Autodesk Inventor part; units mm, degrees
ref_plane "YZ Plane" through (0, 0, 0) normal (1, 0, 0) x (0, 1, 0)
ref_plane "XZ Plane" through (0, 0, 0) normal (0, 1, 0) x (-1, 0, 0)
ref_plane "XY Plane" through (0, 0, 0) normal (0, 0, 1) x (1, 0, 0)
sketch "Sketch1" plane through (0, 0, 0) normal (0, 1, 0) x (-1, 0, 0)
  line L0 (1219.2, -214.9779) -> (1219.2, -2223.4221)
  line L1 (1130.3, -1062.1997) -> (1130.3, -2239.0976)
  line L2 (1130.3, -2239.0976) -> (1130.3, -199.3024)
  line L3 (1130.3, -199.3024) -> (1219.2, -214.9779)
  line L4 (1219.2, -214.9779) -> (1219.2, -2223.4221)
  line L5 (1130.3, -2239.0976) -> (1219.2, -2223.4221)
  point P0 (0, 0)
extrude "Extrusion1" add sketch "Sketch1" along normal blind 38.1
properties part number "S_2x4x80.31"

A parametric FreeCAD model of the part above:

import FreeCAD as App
import Part
import Sketcher

V = App.Vector
Q = App.Units.Quantity


def add_polygon(sketch, points):
    """Adds a closed chain of lines whose ends are joined by coincident constraints."""
    first, n = sketch.GeometryCount, len(points)
    for a, b in zip(points, points[1:] + points[:1]):
        sketch.addGeometry(Part.LineSegment(App.Vector(*a, 0), App.Vector(*b, 0)), False)
    for i in range(n):
        sketch.addConstraint(Sketcher.Constraint("Coincident", first + i, 2, first + (i + 1) % n, 1))

doc = App.newDocument("Part")
params = doc.addObject("Spreadsheet::Sheet", "Params")
for row, (alias, value) in enumerate([
    ("pad1_length", "1.5 in"),
], start=1):
    params.set(f"A{row}", alias)
    params.set(f"B{row}", "=" + value)
    params.setAlias(f"B{row}", alias)

body = doc.addObject("PartDesign::Body", "Body")

# Sketch on XZ plane
sketch1 = doc.addObject("Sketcher::SketchObject", "Sketch")
body.addObject(sketch1)
sketch1.AttachmentSupport = (doc.XZ_Plane, [""])
sketch1.MapMode = "FlatFace"
add_polygon(sketch1, [(-1219, -2223), (-1219, -215), (-1130, -199), (-1130, -2239)])  # lines 0-3
sketch1.addConstraint(Sketcher.Constraint("Vertical", 0))
sketch1.addConstraint(Sketcher.Constraint("Vertical", 2))
sketch1.addConstraint(Sketcher.Constraint("Equal", 1, 3))
sketch1.addConstraint(Sketcher.Constraint("DistanceX", 0, 2, -1, 1, Q("48 in")))
sketch1.addConstraint(Sketcher.Constraint("Angle", 1, Q("10 deg")))
sketch1.addConstraint(Sketcher.Constraint("DistanceX", 1, 2, -1, 1, Q("44.5 in")))
sketch1.addConstraint(Sketcher.Constraint("DistanceY", 0, 1, 0, 2, Q("79.0726 in")))
sketch1.addConstraint(Sketcher.Constraint("DistanceY", 0, 2, -1, 1, Q("8.4637 in")))
pad1 = doc.addObject("PartDesign::Pad", "Pad")
body.addObject(pad1)
pad1.Profile = sketch1
pad1.setExpression("Length", "Params.pad1_length")
pad1.Reversed = True

doc.recompute()
